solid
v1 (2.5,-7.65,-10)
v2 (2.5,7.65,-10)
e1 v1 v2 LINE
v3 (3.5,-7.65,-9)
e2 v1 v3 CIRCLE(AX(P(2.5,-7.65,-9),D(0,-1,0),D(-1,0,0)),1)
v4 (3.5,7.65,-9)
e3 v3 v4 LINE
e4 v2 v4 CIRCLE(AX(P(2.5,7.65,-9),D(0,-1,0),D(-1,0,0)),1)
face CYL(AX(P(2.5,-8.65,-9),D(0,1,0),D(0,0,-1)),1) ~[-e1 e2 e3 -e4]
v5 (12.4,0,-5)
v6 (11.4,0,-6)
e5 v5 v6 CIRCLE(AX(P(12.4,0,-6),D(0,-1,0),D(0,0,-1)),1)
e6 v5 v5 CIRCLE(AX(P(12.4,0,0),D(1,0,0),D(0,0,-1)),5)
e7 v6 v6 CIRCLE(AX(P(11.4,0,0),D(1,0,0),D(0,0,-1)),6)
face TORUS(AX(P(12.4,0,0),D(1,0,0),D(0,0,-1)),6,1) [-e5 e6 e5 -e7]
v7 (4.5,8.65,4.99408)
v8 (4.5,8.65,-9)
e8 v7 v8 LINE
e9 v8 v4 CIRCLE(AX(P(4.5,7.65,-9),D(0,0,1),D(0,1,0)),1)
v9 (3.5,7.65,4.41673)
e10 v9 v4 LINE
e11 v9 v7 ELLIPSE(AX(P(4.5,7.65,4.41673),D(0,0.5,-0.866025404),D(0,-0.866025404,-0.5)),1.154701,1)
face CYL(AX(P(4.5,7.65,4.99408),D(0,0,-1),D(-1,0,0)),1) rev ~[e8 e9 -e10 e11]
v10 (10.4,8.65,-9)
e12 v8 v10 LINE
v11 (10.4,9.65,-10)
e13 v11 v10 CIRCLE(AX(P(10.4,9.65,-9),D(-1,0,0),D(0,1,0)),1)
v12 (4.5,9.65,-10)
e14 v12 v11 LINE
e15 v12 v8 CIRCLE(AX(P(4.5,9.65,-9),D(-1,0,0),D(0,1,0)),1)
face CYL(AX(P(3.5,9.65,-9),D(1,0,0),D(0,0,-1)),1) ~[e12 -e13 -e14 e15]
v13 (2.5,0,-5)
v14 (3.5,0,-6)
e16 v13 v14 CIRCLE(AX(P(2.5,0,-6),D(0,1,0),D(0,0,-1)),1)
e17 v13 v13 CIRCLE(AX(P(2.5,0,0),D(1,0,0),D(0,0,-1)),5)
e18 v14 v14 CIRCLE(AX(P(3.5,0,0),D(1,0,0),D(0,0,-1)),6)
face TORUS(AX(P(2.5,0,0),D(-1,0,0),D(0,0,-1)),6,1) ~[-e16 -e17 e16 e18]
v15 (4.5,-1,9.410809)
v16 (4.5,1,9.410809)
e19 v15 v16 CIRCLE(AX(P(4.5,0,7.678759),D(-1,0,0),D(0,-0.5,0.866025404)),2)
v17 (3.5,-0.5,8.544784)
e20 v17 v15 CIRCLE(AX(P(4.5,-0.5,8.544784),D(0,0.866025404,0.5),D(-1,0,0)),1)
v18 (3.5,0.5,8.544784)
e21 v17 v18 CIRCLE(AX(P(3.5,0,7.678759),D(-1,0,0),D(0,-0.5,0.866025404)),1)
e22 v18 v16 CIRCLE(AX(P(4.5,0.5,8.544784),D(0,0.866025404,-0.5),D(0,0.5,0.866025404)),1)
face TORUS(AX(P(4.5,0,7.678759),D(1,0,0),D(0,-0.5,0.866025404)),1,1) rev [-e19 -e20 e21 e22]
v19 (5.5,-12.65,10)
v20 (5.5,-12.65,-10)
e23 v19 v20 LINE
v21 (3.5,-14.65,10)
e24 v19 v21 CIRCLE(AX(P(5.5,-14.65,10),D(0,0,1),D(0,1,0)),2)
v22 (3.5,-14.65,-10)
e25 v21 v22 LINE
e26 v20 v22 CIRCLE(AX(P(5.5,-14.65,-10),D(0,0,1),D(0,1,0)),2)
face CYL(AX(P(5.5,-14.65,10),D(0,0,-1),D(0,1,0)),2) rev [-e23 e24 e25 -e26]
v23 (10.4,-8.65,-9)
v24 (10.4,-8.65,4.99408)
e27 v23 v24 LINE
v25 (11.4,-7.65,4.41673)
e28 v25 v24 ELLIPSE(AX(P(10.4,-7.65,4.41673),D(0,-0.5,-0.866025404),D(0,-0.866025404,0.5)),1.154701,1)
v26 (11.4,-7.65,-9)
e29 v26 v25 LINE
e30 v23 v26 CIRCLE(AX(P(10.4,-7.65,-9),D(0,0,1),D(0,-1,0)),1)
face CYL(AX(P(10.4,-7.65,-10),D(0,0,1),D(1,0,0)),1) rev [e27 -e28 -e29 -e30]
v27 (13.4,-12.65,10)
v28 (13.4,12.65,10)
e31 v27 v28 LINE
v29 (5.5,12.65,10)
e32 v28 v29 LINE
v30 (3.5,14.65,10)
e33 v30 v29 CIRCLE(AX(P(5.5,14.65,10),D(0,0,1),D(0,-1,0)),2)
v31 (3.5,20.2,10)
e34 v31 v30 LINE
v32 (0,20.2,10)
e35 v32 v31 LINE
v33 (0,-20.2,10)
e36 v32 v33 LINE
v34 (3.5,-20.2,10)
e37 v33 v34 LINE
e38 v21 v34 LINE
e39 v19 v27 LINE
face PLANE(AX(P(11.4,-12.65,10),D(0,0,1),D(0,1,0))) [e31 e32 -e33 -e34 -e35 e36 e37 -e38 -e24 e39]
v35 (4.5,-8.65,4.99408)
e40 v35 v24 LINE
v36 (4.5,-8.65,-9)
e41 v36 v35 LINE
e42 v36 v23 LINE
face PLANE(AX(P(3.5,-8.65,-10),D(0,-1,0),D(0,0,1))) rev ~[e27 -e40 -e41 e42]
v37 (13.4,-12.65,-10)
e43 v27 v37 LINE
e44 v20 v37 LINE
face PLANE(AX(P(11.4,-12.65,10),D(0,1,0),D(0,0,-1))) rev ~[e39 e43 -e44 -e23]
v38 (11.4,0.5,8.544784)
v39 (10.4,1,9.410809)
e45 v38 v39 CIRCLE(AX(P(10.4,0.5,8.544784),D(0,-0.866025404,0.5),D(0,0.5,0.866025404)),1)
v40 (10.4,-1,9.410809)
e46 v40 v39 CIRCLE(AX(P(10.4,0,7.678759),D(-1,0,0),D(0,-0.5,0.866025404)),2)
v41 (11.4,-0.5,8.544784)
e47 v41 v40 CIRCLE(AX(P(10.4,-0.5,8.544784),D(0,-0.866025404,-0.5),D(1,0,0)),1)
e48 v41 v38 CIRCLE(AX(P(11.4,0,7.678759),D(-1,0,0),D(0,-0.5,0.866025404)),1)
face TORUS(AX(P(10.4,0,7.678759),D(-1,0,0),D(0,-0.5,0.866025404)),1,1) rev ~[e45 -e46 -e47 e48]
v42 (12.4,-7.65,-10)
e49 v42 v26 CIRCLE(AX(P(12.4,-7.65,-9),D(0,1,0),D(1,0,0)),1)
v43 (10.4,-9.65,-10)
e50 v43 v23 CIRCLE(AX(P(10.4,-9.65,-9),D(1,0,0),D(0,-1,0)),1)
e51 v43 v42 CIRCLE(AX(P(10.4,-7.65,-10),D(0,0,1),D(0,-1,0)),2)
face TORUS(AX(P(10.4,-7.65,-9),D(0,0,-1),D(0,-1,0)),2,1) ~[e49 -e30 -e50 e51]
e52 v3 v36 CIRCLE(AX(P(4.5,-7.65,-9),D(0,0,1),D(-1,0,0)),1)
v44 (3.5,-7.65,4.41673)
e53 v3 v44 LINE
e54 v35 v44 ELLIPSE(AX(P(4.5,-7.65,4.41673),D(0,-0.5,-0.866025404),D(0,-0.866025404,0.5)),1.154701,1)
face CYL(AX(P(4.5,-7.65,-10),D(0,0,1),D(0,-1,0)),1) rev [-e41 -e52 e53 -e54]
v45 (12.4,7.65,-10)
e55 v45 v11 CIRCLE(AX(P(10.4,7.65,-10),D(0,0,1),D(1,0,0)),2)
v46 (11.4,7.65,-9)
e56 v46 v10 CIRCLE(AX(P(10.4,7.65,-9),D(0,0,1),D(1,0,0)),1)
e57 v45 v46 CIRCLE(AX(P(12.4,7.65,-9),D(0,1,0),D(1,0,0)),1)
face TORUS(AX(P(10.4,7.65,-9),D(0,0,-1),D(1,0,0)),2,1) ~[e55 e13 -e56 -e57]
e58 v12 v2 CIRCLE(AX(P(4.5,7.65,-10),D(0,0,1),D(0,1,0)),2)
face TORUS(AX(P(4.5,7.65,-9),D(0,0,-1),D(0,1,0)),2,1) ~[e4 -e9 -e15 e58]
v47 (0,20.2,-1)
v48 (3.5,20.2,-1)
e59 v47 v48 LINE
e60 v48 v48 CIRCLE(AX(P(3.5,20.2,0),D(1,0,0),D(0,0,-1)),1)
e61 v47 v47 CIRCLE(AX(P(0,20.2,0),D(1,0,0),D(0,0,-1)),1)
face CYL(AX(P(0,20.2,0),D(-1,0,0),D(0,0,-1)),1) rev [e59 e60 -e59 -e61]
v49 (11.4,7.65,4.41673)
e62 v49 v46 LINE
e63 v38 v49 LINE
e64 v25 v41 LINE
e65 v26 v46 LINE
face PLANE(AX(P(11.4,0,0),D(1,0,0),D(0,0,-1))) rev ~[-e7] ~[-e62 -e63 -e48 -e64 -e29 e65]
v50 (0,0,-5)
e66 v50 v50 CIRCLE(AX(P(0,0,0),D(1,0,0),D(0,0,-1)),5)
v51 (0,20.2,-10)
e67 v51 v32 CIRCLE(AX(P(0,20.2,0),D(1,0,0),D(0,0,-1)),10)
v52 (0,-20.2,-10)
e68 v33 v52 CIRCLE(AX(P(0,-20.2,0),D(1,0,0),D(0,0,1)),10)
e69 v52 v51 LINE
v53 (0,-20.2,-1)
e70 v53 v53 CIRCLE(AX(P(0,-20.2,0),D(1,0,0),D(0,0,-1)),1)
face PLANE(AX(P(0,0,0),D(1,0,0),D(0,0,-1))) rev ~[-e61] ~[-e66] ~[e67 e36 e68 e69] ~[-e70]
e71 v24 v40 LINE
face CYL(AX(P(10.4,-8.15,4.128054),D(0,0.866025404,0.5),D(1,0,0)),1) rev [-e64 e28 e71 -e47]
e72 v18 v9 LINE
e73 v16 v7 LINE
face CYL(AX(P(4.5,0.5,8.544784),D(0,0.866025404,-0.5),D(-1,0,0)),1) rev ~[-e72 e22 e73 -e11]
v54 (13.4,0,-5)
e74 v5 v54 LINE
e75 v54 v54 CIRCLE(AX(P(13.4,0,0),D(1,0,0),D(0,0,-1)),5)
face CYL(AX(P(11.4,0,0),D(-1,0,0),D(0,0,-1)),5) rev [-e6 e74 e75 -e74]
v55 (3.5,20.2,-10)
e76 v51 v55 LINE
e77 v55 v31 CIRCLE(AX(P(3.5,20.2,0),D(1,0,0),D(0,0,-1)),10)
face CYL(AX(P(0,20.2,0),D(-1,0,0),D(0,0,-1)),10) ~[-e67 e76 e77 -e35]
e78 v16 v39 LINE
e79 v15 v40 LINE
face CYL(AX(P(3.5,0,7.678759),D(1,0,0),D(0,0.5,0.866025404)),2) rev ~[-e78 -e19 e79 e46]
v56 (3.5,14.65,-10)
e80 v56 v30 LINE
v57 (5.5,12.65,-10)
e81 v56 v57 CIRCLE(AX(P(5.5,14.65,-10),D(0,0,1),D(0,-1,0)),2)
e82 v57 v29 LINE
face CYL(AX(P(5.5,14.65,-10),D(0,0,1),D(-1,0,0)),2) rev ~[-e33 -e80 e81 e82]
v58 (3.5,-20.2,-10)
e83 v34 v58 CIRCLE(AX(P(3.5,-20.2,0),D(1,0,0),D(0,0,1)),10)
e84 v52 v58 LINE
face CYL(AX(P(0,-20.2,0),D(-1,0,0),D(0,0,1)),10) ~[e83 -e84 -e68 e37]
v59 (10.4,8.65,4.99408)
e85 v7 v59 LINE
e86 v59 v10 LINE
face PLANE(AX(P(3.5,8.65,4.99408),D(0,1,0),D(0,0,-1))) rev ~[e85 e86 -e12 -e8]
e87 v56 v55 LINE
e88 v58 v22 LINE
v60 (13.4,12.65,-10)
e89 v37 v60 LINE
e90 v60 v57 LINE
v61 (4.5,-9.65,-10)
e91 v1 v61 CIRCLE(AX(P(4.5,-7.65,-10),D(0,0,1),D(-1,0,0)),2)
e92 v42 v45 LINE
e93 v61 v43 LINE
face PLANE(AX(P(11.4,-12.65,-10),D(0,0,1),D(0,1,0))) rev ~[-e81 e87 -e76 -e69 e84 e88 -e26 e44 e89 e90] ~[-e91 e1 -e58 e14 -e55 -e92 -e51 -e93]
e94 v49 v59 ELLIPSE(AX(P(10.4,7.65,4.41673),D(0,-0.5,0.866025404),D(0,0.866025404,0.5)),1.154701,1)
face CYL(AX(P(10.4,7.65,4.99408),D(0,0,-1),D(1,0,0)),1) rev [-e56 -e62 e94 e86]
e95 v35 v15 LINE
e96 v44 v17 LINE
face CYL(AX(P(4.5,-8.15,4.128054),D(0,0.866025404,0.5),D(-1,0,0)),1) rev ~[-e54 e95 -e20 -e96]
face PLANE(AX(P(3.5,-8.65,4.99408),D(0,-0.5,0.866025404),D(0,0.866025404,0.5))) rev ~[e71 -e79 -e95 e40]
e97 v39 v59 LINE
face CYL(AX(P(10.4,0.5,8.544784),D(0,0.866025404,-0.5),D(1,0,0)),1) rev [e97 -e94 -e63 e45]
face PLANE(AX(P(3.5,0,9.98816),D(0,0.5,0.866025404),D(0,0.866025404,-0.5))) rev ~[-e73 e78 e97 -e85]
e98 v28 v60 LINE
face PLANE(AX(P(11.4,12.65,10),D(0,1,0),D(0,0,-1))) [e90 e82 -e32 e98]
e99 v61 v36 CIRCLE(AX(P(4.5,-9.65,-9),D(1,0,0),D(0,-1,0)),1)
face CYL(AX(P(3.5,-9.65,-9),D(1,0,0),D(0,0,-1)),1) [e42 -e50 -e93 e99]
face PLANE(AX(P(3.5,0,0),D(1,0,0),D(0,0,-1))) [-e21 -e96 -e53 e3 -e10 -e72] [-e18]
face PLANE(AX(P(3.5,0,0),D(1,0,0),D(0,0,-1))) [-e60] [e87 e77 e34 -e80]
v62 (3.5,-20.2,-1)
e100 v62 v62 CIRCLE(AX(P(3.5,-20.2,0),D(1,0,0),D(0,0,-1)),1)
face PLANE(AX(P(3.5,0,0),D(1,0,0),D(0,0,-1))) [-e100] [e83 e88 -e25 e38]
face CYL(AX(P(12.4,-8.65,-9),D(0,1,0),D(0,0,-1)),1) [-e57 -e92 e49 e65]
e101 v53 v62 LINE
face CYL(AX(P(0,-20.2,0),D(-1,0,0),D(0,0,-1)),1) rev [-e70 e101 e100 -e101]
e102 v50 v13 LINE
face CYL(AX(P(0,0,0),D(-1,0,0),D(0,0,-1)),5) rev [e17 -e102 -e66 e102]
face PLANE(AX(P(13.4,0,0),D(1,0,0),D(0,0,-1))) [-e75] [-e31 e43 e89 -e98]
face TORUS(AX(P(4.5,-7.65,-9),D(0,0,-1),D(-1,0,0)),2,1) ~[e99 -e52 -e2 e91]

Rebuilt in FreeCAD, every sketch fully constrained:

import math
import FreeCAD as App
import Part
import Sketcher

V = App.Vector
Q = App.Units.Quantity


def edges_at(feature, points):
    """Names of the edges that pass closest to the given points."""
    edges = feature.Shape.Edges
    near = lambda p: min(range(len(edges)), key=lambda i: edges[i].distToShape(Part.Vertex(*p))[0])
    return sorted({f"Edge{near(p) + 1}" for p in points})

doc = App.newDocument("Part")
body = doc.addObject("PartDesign::Body", "Body")

sketch1 = body.newObject("Sketcher::SketchObject", "Sketch")
sketch1.AttachmentSupport = (doc.getObject("YZ_Plane"), [""])
sketch1.MapMode = "FlatFace"
sketch1.addGeometry(Part.LineSegment(V(-20.2, -10, 0), V(20.2, -10, 0)), False)
sketch1.addGeometry(Part.ArcOfCircle(Part.Circle(V(20.2, 0, 0), V(0, 0, 1), 10), math.radians(-90), math.radians(90)), False)
sketch1.addGeometry(Part.LineSegment(V(20.2, 10, 0), V(-20.2, 10, 0)), False)
sketch1.addGeometry(Part.ArcOfCircle(Part.Circle(V(-20.2, 0, 0), V(0, 0, 1), 10), math.radians(90), math.radians(270)), False)
sketch1.addGeometry(Part.Circle(V(-20.2, 0, 0), V(0, 0, 1), 1), False)
sketch1.addGeometry(Part.Circle(V(0, 0, 0), V(0, 0, 1), 5), False)
sketch1.addGeometry(Part.Circle(V(20.2, 0, 0), V(0, 0, 1), 1), False)
sketch1.addConstraint(Sketcher.Constraint("Tangent", 0, 2, 1, 1))
sketch1.addConstraint(Sketcher.Constraint("Tangent", 1, 2, 2, 1))
sketch1.addConstraint(Sketcher.Constraint("Tangent", 2, 2, 3, 1))
sketch1.addConstraint(Sketcher.Constraint("Tangent", 3, 2, 0, 1))
sketch1.addConstraint(Sketcher.Constraint("Horizontal", 0))
sketch1.addConstraint(Sketcher.Constraint("Horizontal", 2))
sketch1.addConstraint(Sketcher.Constraint("Coincident", 5, 3, -1, 1))
sketch1.addConstraint(Sketcher.Constraint("Coincident", 4, 3, 3, 3))
sketch1.addConstraint(Sketcher.Constraint("Coincident", 6, 3, 1, 3))
sketch1.addConstraint(Sketcher.Constraint("Equal", 4, 6))
sketch1.addConstraint(Sketcher.Constraint("Symmetric", 1, 3, 3, 3, -1, 1))
sketch1.addConstraint(Sketcher.Constraint("Diameter", 4, 2.0))
sketch1.addConstraint(Sketcher.Constraint("Diameter", 5, 10.0))
sketch1.addConstraint(Sketcher.Constraint("Radius", 1, 10.0))
sketch1.addConstraint(Sketcher.Constraint("DistanceX", 0, 1, 0, 2, 40.4))
pad1 = body.newObject("PartDesign::Pad", "Pad")
pad1.Profile = sketch1
pad1.Length = 3.5

sketch2 = body.newObject("Sketcher::SketchObject", "Sketch001")
sketch2.AttachmentSupport = (doc.getObject("YZ_Plane"), [""])
sketch2.MapMode = "FlatFace"
sketch2.AttachmentOffset = App.Placement(V(0, 0, 3.5), App.Rotation())
sketch2.addGeometry(Part.LineSegment(V(0, 10, 0), V(8.7, 5, 0)), False)
sketch2.addGeometry(Part.LineSegment(V(8.7, 5, 0), V(8.7, -10, 0)), False)
sketch2.addGeometry(Part.LineSegment(V(8.7, -10, 0), V(12.7, -10, 0)), False)
sketch2.addGeometry(Part.LineSegment(V(12.7, -10, 0), V(12.7, 10, 0)), False)
sketch2.addGeometry(Part.LineSegment(V(12.7, 10, 0), V(-12.7, 10, 0)), False)
sketch2.addGeometry(Part.LineSegment(V(-12.7, 10, 0), V(-12.7, -10, 0)), False)
sketch2.addGeometry(Part.LineSegment(V(-12.7, -10, 0), V(-8.7, -10, 0)), False)
sketch2.addGeometry(Part.LineSegment(V(-8.7, -10, 0), V(-8.7, 5, 0)), False)
sketch2.addGeometry(Part.LineSegment(V(-8.7, 5, 0), V(0, 10, 0)), False)
sketch2.addConstraint(Sketcher.Constraint("Coincident", 0, 2, 1, 1))
sketch2.addConstraint(Sketcher.Constraint("Coincident", 1, 2, 2, 1))
sketch2.addConstraint(Sketcher.Constraint("Coincident", 2, 2, 3, 1))
sketch2.addConstraint(Sketcher.Constraint("Coincident", 3, 2, 4, 1))
sketch2.addConstraint(Sketcher.Constraint("Coincident", 4, 2, 5, 1))
sketch2.addConstraint(Sketcher.Constraint("Coincident", 5, 2, 6, 1))
sketch2.addConstraint(Sketcher.Constraint("Coincident", 6, 2, 7, 1))
sketch2.addConstraint(Sketcher.Constraint("Coincident", 7, 2, 8, 1))
sketch2.addConstraint(Sketcher.Constraint("Coincident", 8, 2, 0, 1))
sketch2.addConstraint(Sketcher.Constraint("Vertical", 1))
sketch2.addConstraint(Sketcher.Constraint("Horizontal", 2))
sketch2.addConstraint(Sketcher.Constraint("Vertical", 3))
sketch2.addConstraint(Sketcher.Constraint("Horizontal", 4))
sketch2.addConstraint(Sketcher.Constraint("Vertical", 5))
sketch2.addConstraint(Sketcher.Constraint("Horizontal", 6))
sketch2.addConstraint(Sketcher.Constraint("Vertical", 7))
sketch2.addConstraint(Sketcher.Constraint("Symmetric", 2, 2, 4, 2, -1, 1))
sketch2.addConstraint(Sketcher.Constraint("Symmetric", 1, 2, 6, 2, -2))
sketch2.addConstraint(Sketcher.Constraint("PointOnObject", 8, 2, -2))
sketch2.addConstraint(Sketcher.Constraint("Horizontal", 0, 2, 7, 2))
sketch2.addConstraint(Sketcher.Constraint("DistanceX", 2, 1, 2, 2, 4.0))
sketch2.addConstraint(Sketcher.Constraint("DistanceY", 3, 1, 3, 2, 20.0))
sketch2.addConstraint(Sketcher.Constraint("Angle", 0, Q("-30 deg")))
sketch2.addConstraint(Sketcher.Constraint("DistanceX", 4, 2, 4, 1, 25.3))
sketch2.addConstraint(Sketcher.Constraint("DistanceY", 1, 2, 1, 1, 14.99408))
pad2 = body.newObject("PartDesign::Pad", "Pad001")
pad2.Profile = sketch2
pad2.Length = 7.9

sketch3 = body.newObject("Sketcher::SketchObject", "Sketch002")
sketch3.AttachmentSupport = (doc.getObject("YZ_Plane"), [""])
sketch3.MapMode = "FlatFace"
sketch3.AttachmentOffset = App.Placement(V(0, 0, 11.4), App.Rotation())
sketch3.addGeometry(Part.LineSegment(V(13, 10, 0), V(-13, 10, 0)), False)
sketch3.addGeometry(Part.LineSegment(V(-13, 10, 0), V(-13, -10, 0)), False)
sketch3.addGeometry(Part.LineSegment(V(-13, -10, 0), V(13, -10, 0)), False)
sketch3.addGeometry(Part.LineSegment(V(13, -10, 0), V(13, 10, 0)), False)
sketch3.addGeometry(Part.Circle(V(0, 0, 0), V(0, 0, 1), 5), False)
sketch3.addConstraint(Sketcher.Constraint("Coincident", 0, 2, 1, 1))
sketch3.addConstraint(Sketcher.Constraint("Coincident", 1, 2, 2, 1))
sketch3.addConstraint(Sketcher.Constraint("Coincident", 2, 2, 3, 1))
sketch3.addConstraint(Sketcher.Constraint("Coincident", 3, 2, 0, 1))
sketch3.addConstraint(Sketcher.Constraint("Horizontal", 0))
sketch3.addConstraint(Sketcher.Constraint("Vertical", 1))
sketch3.addConstraint(Sketcher.Constraint("Horizontal", 2))
sketch3.addConstraint(Sketcher.Constraint("Vertical", 3))
sketch3.addConstraint(Sketcher.Constraint("Coincident", 4, 3, -1, 1))
sketch3.addConstraint(Sketcher.Constraint("Symmetric", 0, 2, 2, 2, -1, 1))
sketch3.addConstraint(Sketcher.Constraint("Diameter", 4, 10.0))
sketch3.addConstraint(Sketcher.Constraint("DistanceY", 1, 2, 1, 1, 20.0))
sketch3.addConstraint(Sketcher.Constraint("DistanceX", 0, 2, 0, 1, 25.3))
pad3 = body.newObject("PartDesign::Pad", "Pad002")
pad3.Profile = sketch3
pad3.Length = 2
doc.recompute()

fillet = body.newObject("PartDesign::Fillet", "Fillet")
fillet.Base = (pad3, edges_at(pad3, [(7.45, 0, 9.988), (3.5, -12.65, 0), (3.5, 12.65, 0)]))
fillet.Radius = 2
doc.recompute()

fillet2 = body.newObject("PartDesign::Fillet", "Fillet001")
fillet2.Base = (fillet, edges_at(fillet, [
    (3.5, 0, -10),
    (11.4, -8.65, -2.503),
    (7.45, -8.65, -10),
    (11.4, 4.825, 7.202),
    (3.5, 8.65, -2.503),
    (7.45, 8.65, -10),
    (11.4, 8.65, -2.503),
    (3.5, -8.65, -2.503),
    (3.5, 4.825, 7.202),
    (11.4, 0, 5),
    (11.4, 0, -10),
    (3.5, -4.825, 7.202),
    (3.5, 0, 9.679),
    (11.4, -4.825, 7.202),
    (11.4, 0, 9.679),
    (3.5, 0, 5),
]))
fillet2.Radius = 1

doc.recompute()
